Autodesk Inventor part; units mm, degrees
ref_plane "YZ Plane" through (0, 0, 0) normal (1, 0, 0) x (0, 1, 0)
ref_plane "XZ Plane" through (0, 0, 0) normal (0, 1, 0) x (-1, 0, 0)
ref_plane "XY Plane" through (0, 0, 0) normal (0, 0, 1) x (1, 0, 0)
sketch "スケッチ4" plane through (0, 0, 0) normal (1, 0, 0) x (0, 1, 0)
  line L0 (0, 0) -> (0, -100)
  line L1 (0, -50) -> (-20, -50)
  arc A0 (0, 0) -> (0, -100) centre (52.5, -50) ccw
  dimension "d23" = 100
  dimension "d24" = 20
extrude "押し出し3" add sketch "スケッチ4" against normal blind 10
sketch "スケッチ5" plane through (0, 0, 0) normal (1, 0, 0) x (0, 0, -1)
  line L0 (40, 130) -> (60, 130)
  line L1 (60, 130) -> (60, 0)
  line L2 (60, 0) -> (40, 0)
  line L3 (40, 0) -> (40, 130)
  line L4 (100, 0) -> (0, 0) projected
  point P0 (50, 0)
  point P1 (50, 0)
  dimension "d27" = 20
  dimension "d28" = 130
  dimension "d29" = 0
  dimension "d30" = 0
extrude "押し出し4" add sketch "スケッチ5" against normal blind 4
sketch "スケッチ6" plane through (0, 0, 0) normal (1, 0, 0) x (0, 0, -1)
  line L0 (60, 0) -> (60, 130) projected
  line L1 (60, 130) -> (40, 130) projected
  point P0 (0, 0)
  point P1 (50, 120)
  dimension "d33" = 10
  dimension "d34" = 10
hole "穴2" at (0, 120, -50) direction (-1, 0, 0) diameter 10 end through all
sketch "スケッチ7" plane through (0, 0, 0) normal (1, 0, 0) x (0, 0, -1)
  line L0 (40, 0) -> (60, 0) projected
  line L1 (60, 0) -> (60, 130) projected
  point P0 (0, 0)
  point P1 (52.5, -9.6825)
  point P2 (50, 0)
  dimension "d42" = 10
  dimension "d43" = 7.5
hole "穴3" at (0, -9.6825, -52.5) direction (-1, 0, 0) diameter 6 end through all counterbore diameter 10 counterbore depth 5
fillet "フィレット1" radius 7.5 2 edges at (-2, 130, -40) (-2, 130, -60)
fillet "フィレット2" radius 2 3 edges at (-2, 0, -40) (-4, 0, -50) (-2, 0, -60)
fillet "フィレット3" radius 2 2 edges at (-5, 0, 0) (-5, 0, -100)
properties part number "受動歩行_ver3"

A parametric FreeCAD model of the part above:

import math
import FreeCAD as App
import Part
import Sketcher
Q = App.Units.Quantity


def edges_at(feature, points):
    """Names of the edges that pass closest to the given points."""
    edges = feature.Shape.Edges
    near = lambda p: min(range(len(edges)), key=lambda i: edges[i].distToShape(Part.Vertex(*p))[0])
    return sorted({f"Edge{near(p) + 1}" for p in points})


def add_polygon(sketch, points):
    """Adds a closed chain of lines whose ends are joined by coincident constraints."""
    first, n = sketch.GeometryCount, len(points)
    for a, b in zip(points, points[1:] + points[:1]):
        sketch.addGeometry(Part.LineSegment(App.Vector(*a, 0), App.Vector(*b, 0)), False)
    for i in range(n):
        sketch.addConstraint(Sketcher.Constraint("Coincident", first + i, 2, first + (i + 1) % n, 1))

doc = App.newDocument("Part")
params = doc.addObject("Spreadsheet::Sheet", "Params")
for row, (alias, value) in enumerate([
    ("sketch1_height", "100 mm"),
    ("sketch1_radius", "72.5 mm"),
    ("pad1_length", "10 mm"),
    ("sketch2_width", "130 mm"),
    ("sketch2_height", "20 mm"),
    ("pad2_length", "4 mm"),
    ("sketch3_diameter", "10 mm"),
    ("hole_diameter", "10 mm"),
    ("sketch4_diameter", "6 mm"),
    ("hole2_diameter", "6 mm"),
    ("hole2_cbore_diameter", "10 mm"),
    ("hole2_cbore_depth", "5 mm"),
    ("fillet_radius", "7.5 mm"),
    ("fillet2_radius", "2 mm"),
    ("fillet3_radius", "2 mm"),
], start=1):
    params.set(f"A{row}", alias)
    params.set(f"B{row}", "=" + value)
    params.setAlias(f"B{row}", alias)

body = doc.addObject("PartDesign::Body", "Body")

# Sketch on YZ plane
sketch1 = doc.addObject("Sketcher::SketchObject", "Sketch")
body.addObject(sketch1)
sketch1.AttachmentSupport = (doc.YZ_Plane, [""])
sketch1.MapMode = "FlatFace"
sketch1.addGeometry([
    Part.ArcOfCircle(Part.Circle(App.Vector(52.5, -50, 0), App.Vector(0, 0, 1), 72.5), math.radians(136.397181), math.radians(223.602819)),
    Part.LineSegment(App.Vector(0, -100, 0), App.Vector(0, 0, 0)),
], False)
sketch1.addConstraint([
    Sketcher.Constraint("Coincident", 0, 1, 1, 2),
    Sketcher.Constraint("Coincident", 1, 1, 0, 2),
    Sketcher.Constraint("Vertical", 1),
    Sketcher.Constraint("Coincident", 0, 1, -1, 1),
    Sketcher.Constraint("DistanceY", 1, 1, 1, 2, Q("100 mm")),
    Sketcher.Constraint("Radius", 0, Q("72.5 mm")),
])
sketch1.setExpression("Constraints[4]", "Params.sketch1_height")
sketch1.setExpression("Constraints[5]", "Params.sketch1_radius")
pad1 = doc.addObject("PartDesign::Pad", "Pad")
body.addObject(pad1)
pad1.Profile = sketch1
pad1.setExpression("Length", "Params.pad1_length")
pad1.Reversed = True

# Sketch on YZ plane
sketch2 = doc.addObject("Sketcher::SketchObject", "Sketch001")
body.addObject(sketch2)
sketch2.AttachmentSupport = (doc.YZ_Plane, [""])
sketch2.MapMode = "FlatFace"
add_polygon(sketch2, [(130, -60), (130, -40), (0, -40), (0, -60)])  # lines 0-3
sketch2.addConstraint([
    Sketcher.Constraint("Vertical", 0),
    Sketcher.Constraint("Horizontal", 1),
    Sketcher.Constraint("Vertical", 2),
    Sketcher.Constraint("Horizontal", 3),
    Sketcher.Constraint("PointOnObject", 1, 2, -2),
    Sketcher.Constraint("DistanceX", 1, 2, 1, 1, Q("130 mm")),
    Sketcher.Constraint("DistanceY", 0, 1, 0, 2, Q("20 mm")),
    Sketcher.Constraint("DistanceY", 0, 2, -1, 1, Q("40 mm")),
])
sketch2.setExpression("Constraints[9]", "Params.sketch2_width")
sketch2.setExpression("Constraints[10]", "Params.sketch2_height")
pad2 = doc.addObject("PartDesign::Pad", "Pad001")
body.addObject(pad2)
pad2.Profile = sketch2
pad2.setExpression("Length", "Params.pad2_length")
pad2.Reversed = True

# Sketch on YZ plane
sketch3 = doc.addObject("Sketcher::SketchObject", "Sketch002")
body.addObject(sketch3)
sketch3.AttachmentSupport = (doc.YZ_Plane, [""])
sketch3.MapMode = "FlatFace"
sketch3.addGeometry(Part.Circle(App.Vector(120, -50, 0), App.Vector(0, 0, 1), 5), False)
sketch3.addConstraint([
    Sketcher.Constraint("Diameter", 0, Q("10 mm")),
    Sketcher.Constraint("DistanceX", -1, 1, 0, 3, Q("120 mm")),
    Sketcher.Constraint("DistanceY", 0, 3, -1, 1, Q("50 mm")),
])
sketch3.setExpression("Constraints[0]", "Params.sketch3_diameter")
doc.recompute()
hole = doc.addObject("PartDesign::Hole", "Hole")
body.addObject(hole)
hole.Profile = sketch3
hole.ThreadType = "None"
hole.setExpression("Diameter", "Params.hole_diameter")
hole.DepthType = "ThroughAll"

# Sketch on YZ plane
sketch4 = doc.addObject("Sketcher::SketchObject", "Sketch003")
body.addObject(sketch4)
sketch4.AttachmentSupport = (doc.YZ_Plane, [""])
sketch4.MapMode = "FlatFace"
sketch4.addGeometry(Part.Circle(App.Vector(-9.6825, -52.5, 0), App.Vector(0, 0, 1), 3), False)
sketch4.addConstraint([
    Sketcher.Constraint("Diameter", 0, Q("6 mm")),
    Sketcher.Constraint("DistanceY", 0, 3, -1, 1, Q("52.5 mm")),
    Sketcher.Constraint("DistanceX", 0, 3, -1, 1, Q("9.6825 mm")),
])
sketch4.setExpression("Constraints[0]", "Params.sketch4_diameter")
doc.recompute()
hole2 = doc.addObject("PartDesign::Hole", "Hole001")
body.addObject(hole2)
hole2.Profile = sketch4
hole2.ThreadType = "None"
hole2.setExpression("Diameter", "Params.hole2_diameter")
hole2.DepthType = "ThroughAll"
hole2.HoleCutType = "Counterbore"
hole2.setExpression("HoleCutDiameter", "Params.hole2_cbore_diameter")
hole2.setExpression("HoleCutDepth", "Params.hole2_cbore_depth")
doc.recompute()

fillet = doc.addObject("PartDesign::Fillet", "Fillet")
body.addObject(fillet)
fillet.Base = (hole2, edges_at(hole2, [(-2, 130, -40), (-2, 130, -60)]))
fillet.setExpression("Radius", "Params.fillet_radius")
doc.recompute()

fillet2 = doc.addObject("PartDesign::Fillet", "Fillet001")
body.addObject(fillet2)
fillet2.Base = (fillet, edges_at(fillet, [(-2, 0, -40), (-4, 0, -50), (-2, 0, -60)]))
fillet2.setExpression("Radius", "Params.fillet2_radius")
doc.recompute()

fillet3 = doc.addObject("PartDesign::Fillet", "Fillet002")
body.addObject(fillet3)
fillet3.Base = (fillet2, edges_at(fillet2, [(-5, 0, 0), (-5, 0, -100)]))
fillet3.setExpression("Radius", "Params.fillet3_radius")

doc.recompute()
